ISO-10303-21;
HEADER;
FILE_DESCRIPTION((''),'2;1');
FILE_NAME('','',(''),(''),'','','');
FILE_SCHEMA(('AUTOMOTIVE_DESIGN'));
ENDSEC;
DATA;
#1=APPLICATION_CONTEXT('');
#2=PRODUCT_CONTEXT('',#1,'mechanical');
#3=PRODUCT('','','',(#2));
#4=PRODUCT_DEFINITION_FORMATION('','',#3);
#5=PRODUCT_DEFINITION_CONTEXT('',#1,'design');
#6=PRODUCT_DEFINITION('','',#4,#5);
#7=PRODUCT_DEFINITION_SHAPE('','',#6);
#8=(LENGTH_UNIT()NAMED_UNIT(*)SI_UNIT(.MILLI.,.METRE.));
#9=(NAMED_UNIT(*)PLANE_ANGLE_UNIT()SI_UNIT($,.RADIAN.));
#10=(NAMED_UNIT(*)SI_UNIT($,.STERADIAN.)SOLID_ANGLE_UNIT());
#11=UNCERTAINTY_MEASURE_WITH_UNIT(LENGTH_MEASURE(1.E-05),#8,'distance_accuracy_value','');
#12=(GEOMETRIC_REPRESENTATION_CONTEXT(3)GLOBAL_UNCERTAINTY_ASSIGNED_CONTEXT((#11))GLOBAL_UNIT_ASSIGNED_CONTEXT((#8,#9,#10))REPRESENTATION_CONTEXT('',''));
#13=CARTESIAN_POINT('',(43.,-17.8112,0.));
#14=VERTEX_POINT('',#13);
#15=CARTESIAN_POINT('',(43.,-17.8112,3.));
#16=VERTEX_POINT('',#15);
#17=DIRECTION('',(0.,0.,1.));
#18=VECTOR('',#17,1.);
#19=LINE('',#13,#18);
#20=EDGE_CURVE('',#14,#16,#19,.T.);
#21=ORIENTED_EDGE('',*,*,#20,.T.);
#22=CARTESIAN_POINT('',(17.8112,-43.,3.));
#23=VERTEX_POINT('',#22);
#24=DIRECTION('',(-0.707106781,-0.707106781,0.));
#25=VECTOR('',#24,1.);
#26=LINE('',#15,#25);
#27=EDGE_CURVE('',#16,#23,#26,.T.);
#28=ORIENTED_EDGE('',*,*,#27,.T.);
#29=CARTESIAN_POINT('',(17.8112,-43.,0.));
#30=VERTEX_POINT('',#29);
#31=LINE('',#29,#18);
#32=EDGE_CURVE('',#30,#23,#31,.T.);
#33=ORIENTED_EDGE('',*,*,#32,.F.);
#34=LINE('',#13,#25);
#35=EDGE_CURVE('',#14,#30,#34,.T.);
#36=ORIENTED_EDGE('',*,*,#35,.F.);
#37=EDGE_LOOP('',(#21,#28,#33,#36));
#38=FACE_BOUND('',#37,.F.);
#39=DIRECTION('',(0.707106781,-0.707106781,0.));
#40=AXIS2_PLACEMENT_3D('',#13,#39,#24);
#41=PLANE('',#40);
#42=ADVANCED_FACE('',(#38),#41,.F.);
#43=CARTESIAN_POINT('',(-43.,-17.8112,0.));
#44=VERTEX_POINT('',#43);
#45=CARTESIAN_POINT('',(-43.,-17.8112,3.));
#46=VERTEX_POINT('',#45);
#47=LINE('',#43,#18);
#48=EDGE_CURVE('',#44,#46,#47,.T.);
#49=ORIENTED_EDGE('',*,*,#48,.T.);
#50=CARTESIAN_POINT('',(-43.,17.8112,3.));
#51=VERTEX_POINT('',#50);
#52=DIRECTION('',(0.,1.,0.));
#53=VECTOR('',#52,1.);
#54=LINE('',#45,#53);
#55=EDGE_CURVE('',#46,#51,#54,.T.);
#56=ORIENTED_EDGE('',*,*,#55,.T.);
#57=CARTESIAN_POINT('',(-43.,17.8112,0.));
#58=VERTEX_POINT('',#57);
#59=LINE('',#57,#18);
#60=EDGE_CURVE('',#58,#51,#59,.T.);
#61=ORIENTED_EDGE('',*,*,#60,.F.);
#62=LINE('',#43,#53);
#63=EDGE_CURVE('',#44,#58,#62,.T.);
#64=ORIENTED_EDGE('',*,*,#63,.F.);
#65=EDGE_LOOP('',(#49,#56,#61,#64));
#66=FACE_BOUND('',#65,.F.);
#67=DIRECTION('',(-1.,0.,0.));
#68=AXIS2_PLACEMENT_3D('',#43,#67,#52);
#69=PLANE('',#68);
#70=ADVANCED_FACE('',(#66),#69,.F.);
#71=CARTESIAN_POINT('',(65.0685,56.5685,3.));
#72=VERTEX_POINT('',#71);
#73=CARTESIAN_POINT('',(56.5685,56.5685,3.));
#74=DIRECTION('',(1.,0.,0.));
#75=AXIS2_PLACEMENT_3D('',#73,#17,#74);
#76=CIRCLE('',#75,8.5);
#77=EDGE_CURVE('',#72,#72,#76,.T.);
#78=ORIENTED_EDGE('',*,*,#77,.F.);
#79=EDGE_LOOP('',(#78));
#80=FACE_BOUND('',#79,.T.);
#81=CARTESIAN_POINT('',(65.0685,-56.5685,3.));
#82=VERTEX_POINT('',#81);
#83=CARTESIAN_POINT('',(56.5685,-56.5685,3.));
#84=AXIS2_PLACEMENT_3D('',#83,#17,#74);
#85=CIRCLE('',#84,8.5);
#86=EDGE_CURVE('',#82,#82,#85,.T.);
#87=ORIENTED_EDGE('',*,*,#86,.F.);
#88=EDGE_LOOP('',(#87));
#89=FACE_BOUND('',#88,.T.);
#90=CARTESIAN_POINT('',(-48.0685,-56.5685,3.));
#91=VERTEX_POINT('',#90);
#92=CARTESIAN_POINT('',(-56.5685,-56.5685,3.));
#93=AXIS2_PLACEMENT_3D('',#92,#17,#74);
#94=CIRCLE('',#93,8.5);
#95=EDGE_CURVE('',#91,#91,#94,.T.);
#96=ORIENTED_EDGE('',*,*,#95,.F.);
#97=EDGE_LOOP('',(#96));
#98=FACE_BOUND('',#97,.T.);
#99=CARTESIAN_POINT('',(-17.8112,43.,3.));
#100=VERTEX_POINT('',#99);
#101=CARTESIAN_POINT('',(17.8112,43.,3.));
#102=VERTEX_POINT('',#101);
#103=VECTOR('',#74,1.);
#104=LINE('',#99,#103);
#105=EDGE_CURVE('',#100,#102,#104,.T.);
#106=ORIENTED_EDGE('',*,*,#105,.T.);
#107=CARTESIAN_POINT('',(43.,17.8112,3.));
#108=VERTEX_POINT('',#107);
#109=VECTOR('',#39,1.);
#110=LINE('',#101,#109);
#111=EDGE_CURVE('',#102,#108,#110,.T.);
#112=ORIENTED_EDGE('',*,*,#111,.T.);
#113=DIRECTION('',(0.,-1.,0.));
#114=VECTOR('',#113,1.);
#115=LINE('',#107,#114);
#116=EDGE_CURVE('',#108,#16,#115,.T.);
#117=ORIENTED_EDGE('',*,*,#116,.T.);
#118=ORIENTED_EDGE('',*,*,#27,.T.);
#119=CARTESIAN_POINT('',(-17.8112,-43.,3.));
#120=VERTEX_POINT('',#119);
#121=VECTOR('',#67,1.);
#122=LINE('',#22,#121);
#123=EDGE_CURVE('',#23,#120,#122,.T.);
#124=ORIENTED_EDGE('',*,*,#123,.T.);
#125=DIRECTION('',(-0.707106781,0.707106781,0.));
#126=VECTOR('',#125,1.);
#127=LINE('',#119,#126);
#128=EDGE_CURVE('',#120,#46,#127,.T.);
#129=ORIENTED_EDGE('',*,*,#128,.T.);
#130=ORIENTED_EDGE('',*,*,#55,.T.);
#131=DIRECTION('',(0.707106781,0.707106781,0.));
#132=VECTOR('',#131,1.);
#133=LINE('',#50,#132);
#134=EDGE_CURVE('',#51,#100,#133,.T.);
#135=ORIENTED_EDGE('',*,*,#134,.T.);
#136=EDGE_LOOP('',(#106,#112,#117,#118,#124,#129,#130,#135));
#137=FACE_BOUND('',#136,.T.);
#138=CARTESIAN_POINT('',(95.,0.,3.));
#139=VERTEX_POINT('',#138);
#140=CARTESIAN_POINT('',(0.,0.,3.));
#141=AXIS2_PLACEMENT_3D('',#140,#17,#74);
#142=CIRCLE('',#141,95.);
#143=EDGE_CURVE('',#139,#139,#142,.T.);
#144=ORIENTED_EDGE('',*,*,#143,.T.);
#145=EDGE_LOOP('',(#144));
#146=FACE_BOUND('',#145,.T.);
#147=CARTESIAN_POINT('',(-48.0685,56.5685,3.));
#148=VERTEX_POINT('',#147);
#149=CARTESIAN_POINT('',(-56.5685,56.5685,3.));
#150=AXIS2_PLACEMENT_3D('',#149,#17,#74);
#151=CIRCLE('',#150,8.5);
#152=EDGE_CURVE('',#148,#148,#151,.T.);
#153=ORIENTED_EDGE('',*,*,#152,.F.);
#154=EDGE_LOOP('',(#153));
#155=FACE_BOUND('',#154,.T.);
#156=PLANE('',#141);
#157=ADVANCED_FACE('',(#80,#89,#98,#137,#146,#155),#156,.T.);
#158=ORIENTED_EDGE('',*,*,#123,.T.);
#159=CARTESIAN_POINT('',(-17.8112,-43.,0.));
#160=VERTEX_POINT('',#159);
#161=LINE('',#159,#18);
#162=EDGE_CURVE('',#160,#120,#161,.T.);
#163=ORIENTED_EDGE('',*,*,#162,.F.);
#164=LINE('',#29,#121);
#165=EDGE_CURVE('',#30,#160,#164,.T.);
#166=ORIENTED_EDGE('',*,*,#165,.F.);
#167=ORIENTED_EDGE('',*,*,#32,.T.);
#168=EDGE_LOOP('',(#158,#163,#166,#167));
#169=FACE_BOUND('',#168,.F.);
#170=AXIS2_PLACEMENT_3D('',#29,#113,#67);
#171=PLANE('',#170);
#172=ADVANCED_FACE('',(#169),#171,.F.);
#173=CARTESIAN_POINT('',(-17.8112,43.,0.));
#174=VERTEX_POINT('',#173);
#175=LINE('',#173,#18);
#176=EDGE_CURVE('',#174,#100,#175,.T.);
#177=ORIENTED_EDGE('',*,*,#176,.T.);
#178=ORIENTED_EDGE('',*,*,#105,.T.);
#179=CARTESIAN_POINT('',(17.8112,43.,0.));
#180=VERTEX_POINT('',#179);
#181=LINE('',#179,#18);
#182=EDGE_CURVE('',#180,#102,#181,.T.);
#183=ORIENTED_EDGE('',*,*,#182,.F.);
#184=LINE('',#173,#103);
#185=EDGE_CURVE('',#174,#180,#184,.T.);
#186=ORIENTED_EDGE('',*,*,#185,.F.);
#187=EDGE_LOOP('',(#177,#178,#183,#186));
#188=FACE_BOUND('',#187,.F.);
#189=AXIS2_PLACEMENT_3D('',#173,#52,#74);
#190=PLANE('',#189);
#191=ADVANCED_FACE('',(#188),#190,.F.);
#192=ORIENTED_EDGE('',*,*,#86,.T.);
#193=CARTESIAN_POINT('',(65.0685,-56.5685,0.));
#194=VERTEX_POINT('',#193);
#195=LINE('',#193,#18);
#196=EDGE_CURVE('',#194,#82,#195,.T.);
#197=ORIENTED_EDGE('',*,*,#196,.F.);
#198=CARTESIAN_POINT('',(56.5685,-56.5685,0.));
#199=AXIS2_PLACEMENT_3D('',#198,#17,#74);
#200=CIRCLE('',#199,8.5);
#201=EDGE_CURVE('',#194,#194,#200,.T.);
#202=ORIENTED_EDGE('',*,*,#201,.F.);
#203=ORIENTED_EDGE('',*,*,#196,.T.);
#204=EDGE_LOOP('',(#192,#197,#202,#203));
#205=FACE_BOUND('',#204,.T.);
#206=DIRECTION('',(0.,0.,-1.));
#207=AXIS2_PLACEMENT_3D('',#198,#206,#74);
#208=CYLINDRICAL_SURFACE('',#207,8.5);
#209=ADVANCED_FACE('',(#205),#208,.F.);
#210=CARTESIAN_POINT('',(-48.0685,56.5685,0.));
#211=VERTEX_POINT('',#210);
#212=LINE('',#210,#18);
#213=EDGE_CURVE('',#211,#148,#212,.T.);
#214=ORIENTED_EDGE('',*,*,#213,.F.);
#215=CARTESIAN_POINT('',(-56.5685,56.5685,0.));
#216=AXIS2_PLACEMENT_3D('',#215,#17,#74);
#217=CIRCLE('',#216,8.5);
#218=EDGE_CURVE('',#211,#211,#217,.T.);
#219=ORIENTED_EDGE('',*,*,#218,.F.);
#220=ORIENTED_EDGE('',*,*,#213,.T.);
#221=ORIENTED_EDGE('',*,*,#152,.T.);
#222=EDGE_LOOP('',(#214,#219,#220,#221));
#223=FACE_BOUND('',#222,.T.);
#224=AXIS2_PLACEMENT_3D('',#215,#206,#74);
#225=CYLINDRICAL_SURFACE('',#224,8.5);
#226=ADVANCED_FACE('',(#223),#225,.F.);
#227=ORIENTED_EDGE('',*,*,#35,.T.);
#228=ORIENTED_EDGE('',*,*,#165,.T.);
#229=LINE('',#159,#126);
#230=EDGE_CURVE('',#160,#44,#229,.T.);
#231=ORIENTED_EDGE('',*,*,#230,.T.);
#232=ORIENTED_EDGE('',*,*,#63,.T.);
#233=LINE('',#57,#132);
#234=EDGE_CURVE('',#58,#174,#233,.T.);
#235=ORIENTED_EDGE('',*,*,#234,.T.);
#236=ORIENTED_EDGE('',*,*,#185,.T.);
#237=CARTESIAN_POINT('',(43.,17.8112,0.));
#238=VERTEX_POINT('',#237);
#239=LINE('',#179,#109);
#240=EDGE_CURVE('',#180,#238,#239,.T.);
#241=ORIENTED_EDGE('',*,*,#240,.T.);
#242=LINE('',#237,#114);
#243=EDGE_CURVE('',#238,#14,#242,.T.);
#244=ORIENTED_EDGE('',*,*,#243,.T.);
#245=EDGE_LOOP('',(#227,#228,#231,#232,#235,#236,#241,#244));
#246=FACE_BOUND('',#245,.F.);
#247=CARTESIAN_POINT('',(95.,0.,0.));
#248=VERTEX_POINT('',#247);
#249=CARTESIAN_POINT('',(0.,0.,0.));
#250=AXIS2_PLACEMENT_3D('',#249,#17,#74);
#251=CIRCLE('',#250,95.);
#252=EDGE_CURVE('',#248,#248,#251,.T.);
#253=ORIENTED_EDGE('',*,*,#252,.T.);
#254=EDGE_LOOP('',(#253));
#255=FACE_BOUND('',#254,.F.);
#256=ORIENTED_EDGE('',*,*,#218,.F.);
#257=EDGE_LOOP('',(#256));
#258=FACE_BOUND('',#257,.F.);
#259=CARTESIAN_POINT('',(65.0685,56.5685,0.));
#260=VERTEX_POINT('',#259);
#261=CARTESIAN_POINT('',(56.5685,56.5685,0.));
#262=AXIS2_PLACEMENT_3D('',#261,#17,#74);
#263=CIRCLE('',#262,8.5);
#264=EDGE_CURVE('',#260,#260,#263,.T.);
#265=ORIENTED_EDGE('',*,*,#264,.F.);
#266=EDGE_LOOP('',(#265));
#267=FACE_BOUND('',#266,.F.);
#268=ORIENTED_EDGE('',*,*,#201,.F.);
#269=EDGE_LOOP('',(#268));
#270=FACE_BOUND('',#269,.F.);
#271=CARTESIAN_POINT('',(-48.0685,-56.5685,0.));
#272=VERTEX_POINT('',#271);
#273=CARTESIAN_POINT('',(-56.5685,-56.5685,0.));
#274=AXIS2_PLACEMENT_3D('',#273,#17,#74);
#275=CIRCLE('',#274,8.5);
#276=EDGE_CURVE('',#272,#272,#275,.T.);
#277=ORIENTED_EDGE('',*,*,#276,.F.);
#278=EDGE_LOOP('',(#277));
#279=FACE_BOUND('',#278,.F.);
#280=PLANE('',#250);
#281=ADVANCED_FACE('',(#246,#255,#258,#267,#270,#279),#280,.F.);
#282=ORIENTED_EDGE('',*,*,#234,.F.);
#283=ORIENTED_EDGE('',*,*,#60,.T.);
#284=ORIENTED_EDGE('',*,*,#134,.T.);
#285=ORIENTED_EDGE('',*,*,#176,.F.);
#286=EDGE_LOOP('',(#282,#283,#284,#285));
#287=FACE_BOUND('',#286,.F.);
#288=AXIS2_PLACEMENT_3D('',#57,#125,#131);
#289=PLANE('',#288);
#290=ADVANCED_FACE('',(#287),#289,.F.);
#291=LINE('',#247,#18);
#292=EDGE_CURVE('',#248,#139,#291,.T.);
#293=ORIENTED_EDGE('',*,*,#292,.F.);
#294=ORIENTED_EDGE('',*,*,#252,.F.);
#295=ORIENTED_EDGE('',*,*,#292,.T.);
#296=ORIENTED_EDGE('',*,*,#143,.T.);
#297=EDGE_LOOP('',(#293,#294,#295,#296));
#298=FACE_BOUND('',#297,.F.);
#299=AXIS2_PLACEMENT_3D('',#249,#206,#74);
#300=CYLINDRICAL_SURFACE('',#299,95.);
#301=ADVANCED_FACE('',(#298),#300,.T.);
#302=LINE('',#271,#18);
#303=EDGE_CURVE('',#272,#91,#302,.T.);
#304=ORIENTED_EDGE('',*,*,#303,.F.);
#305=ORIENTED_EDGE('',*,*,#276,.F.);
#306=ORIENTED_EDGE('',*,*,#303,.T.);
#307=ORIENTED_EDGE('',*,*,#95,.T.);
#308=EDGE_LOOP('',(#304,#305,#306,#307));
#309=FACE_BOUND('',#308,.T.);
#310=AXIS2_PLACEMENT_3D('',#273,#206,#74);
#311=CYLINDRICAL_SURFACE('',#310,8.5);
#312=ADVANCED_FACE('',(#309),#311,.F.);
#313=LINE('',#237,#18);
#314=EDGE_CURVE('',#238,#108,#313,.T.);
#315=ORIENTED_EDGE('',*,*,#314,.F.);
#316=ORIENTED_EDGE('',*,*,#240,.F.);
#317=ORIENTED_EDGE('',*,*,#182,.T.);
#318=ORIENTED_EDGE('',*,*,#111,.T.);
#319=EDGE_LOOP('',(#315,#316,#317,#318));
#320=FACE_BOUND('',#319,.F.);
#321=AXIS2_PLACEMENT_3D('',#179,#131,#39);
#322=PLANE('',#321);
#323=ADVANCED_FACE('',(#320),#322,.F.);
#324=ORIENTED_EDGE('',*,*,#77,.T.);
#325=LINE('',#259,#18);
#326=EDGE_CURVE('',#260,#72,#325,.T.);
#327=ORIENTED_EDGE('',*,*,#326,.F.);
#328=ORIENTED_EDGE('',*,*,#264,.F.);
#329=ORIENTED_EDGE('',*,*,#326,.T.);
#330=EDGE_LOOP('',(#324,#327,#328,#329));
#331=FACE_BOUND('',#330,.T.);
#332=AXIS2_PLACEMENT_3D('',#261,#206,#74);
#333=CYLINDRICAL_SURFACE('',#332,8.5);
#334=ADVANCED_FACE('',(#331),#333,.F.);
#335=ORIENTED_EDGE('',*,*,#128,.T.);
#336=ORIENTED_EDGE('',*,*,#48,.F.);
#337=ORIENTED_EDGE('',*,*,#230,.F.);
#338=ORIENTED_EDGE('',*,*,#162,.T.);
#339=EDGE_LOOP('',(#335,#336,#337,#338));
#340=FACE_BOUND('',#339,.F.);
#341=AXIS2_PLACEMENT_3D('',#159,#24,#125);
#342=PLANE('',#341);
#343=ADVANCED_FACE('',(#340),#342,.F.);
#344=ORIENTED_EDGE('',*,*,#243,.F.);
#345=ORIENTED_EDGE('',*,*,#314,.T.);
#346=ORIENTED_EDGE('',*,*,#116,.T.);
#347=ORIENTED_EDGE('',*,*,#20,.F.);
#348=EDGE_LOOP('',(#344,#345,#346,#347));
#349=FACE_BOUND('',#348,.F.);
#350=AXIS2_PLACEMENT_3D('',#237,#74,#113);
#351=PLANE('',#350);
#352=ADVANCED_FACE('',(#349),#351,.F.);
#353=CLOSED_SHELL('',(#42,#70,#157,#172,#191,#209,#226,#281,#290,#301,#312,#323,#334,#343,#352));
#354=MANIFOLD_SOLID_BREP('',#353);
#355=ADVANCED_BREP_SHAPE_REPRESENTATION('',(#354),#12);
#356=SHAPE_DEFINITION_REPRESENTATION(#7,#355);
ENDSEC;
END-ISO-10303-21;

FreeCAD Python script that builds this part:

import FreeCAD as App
import Part
import Sketcher

doc = App.newDocument("Part")
body = doc.addObject("PartDesign::Body", "Body")

# Sketch on XY plane
sketch1 = body.newObject("Sketcher::SketchObject", "Sketch")
sketch1.AttachmentSupport = (doc.getObject("XY_Plane"), [""])
sketch1.MapMode = "FlatFace"
sketch1.addGeometry(Part.Circle(App.Vector(0, 0, 0), App.Vector(0, 0, 1), 95), False)
sketch1.addGeometry(Part.Circle(App.Vector(-57, -57, 0), App.Vector(0, 0, 1), 8), False)
sketch1.addGeometry(Part.Circle(App.Vector(57, -57, 0), App.Vector(0, 0, 1), 8), False)
sketch1.addGeometry(Part.Circle(App.Vector(-57, 57, 0), App.Vector(0, 0, 1), 8), False)
sketch1.addGeometry(Part.LineSegment(App.Vector(43, -18, 0), App.Vector(18, -43, 0)), False)
sketch1.addGeometry(Part.LineSegment(App.Vector(18, -43, 0), App.Vector(-18, -43, 0)), False)
sketch1.addGeometry(Part.LineSegment(App.Vector(-18, -43, 0), App.Vector(-43, -18, 0)), False)
sketch1.addGeometry(Part.LineSegment(App.Vector(-43, -18, 0), App.Vector(-43, 18, 0)), False)
sketch1.addGeometry(Part.LineSegment(App.Vector(-43, 18, 0), App.Vector(-18, 43, 0)), False)
sketch1.addGeometry(Part.LineSegment(App.Vector(-18, 43, 0), App.Vector(18, 43, 0)), False)
sketch1.addGeometry(Part.LineSegment(App.Vector(18, 43, 0), App.Vector(43, 18, 0)), False)
sketch1.addGeometry(Part.LineSegment(App.Vector(43, 18, 0), App.Vector(43, -18, 0)), False)
sketch1.addGeometry(Part.Circle(App.Vector(57, 57, 0), App.Vector(0, 0, 1), 8), False)
sketch1.addConstraint(Sketcher.Constraint("Coincident", 4, 2, 5, 1))
sketch1.addConstraint(Sketcher.Constraint("Coincident", 5, 2, 6, 1))
sketch1.addConstraint(Sketcher.Constraint("Coincident", 6, 2, 7, 1))
sketch1.addConstraint(Sketcher.Constraint("Coincident", 7, 2, 8, 1))
sketch1.addConstraint(Sketcher.Constraint("Coincident", 8, 2, 9, 1))
sketch1.addConstraint(Sketcher.Constraint("Coincident", 9, 2, 10, 1))
sketch1.addConstraint(Sketcher.Constraint("Coincident", 10, 2, 11, 1))
sketch1.addConstraint(Sketcher.Constraint("Coincident", 11, 2, 4, 1))
sketch1.addConstraint(Sketcher.Constraint("Horizontal", 5))
sketch1.addConstraint(Sketcher.Constraint("Vertical", 7))
sketch1.addConstraint(Sketcher.Constraint("Horizontal", 9))
sketch1.addConstraint(Sketcher.Constraint("Vertical", 11))
sketch1.addConstraint(Sketcher.Constraint("Coincident", 0, 3, -1, 1))
sketch1.addConstraint(Sketcher.Constraint("Equal", 1, 2))
sketch1.addConstraint(Sketcher.Constraint("Equal", 2, 3))
sketch1.addConstraint(Sketcher.Constraint("Equal", 3, 12))
sketch1.addConstraint(Sketcher.Constraint("Symmetric", 2, 3, 3, 3, -1, 1))
sketch1.addConstraint(Sketcher.Constraint("Symmetric", 1, 3, 12, 3, -1, 1))
sketch1.addConstraint(Sketcher.Constraint("Symmetric", 4, 2, 8, 2, -1, 1))
sketch1.addConstraint(Sketcher.Constraint("Symmetric", 6, 2, 10, 2, -1, 1))
sketch1.addConstraint(Sketcher.Constraint("Symmetric", 1, 3, 2, 3, -2))
sketch1.addConstraint(Sketcher.Constraint("Perpendicular", 4, 6))
sketch1.addConstraint(Sketcher.Constraint("Perpendicular", 6, 8))
sketch1.addConstraint(Sketcher.Constraint("Perpendicular", 8, 10))
sketch1.addConstraint(Sketcher.Constraint("Horizontal", 7, 2, 10, 2))
sketch1.addConstraint(Sketcher.Constraint("Vertical", 5, 2, 8, 2))
sketch1.addConstraint(Sketcher.Constraint("Equal", 9, 7))
sketch1.addConstraint(Sketcher.Constraint("Diameter", 0, 190.0))
sketch1.addConstraint(Sketcher.Constraint("Diameter", 1, 17.0))
sketch1.addConstraint(Sketcher.Constraint("DistanceY", 4, 2, -1, 1, 43.0))
sketch1.addConstraint(Sketcher.Constraint("DistanceX", 5, 2, 5, 1, 35.6224))
sketch1.addConstraint(Sketcher.Constraint("DistanceX", 1, 3, 2, 3, 113.137))
sketch1.addConstraint(Sketcher.Constraint("DistanceY", 1, 3, 3, 3, 113.137))
pad1 = body.newObject("PartDesign::Pad", "Pad")
pad1.Profile = sketch1
pad1.Length = 3

doc.recompute()
